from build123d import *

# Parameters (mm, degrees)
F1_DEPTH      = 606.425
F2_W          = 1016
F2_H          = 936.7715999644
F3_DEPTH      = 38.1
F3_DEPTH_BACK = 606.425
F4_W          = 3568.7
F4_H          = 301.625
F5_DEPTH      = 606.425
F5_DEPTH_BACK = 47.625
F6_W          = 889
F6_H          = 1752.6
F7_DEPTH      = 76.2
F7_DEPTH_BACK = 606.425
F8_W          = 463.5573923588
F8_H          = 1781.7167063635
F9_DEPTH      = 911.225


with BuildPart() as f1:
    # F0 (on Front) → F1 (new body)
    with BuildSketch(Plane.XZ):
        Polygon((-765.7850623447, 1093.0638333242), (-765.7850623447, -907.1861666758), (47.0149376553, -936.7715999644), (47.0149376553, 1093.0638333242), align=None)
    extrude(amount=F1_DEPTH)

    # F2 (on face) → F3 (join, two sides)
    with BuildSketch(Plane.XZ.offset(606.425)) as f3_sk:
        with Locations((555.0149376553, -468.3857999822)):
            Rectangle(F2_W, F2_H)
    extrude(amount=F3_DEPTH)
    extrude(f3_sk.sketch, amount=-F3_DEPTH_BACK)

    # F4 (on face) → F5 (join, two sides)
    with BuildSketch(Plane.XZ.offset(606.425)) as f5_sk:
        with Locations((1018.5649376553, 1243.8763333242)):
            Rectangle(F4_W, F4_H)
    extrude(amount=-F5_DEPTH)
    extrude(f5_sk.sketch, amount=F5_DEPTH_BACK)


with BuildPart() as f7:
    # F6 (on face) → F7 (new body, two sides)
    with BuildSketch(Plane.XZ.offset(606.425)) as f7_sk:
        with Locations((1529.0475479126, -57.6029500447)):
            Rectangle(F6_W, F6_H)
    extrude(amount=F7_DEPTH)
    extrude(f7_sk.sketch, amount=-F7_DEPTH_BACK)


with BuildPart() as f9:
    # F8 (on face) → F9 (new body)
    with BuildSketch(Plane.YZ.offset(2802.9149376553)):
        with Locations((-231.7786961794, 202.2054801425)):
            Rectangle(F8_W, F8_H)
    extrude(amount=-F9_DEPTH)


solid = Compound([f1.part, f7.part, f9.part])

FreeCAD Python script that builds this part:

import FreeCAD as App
import Part
import Sketcher

V = App.Vector
Q = App.Units.Quantity

doc = App.newDocument("Part")
body = doc.addObject("PartDesign::Body", "Body")

sketch1 = body.newObject("Sketcher::SketchObject", "Sketch")
sketch1.AttachmentSupport = (doc.getObject("XZ_Plane"), [""])
sketch1.MapMode = "FlatFace"
sketch1.addGeometry(Part.LineSegment(V(-766, 1093, 0), V(-766, -907, 0)), False)
sketch1.addGeometry(Part.LineSegment(V(-766, -907, 0), V(47, -937, 0)), False)
sketch1.addGeometry(Part.LineSegment(V(47, -937, 0), V(47, 1093, 0)), False)
sketch1.addGeometry(Part.LineSegment(V(47, 1093, 0), V(-766, 1093, 0)), False)
sketch1.addConstraint(Sketcher.Constraint("Coincident", 0, 2, 1, 1))
sketch1.addConstraint(Sketcher.Constraint("Coincident", 1, 2, 2, 1))
sketch1.addConstraint(Sketcher.Constraint("Coincident", 2, 2, 3, 1))
sketch1.addConstraint(Sketcher.Constraint("Coincident", 3, 2, 0, 1))
sketch1.addConstraint(Sketcher.Constraint("Vertical", 0))
sketch1.addConstraint(Sketcher.Constraint("Vertical", 2))
sketch1.addConstraint(Sketcher.Constraint("Horizontal", 3))
sketch1.addConstraint(Sketcher.Constraint("DistanceX", 3, 2, 3, 1, Q("32 in")))
sketch1.addConstraint(Sketcher.Constraint("DistanceY", 0, 2, 0, 1, Q("78.75 in")))
sketch1.addConstraint(Sketcher.Constraint("DistanceY", 1, 2, -1, 1, 936.7716))
sketch1.addConstraint(Sketcher.Constraint("DistanceY", 2, 1, 2, 2, 2029.835433))
sketch1.addConstraint(Sketcher.Constraint("DistanceX", 0, 2, -1, 1, 765.785062))
pad1 = body.newObject("PartDesign::Pad", "Pad")
pad1.Profile = sketch1
pad1.Length = Q("23.875 in")

sketch2 = body.newObject("Sketcher::SketchObject", "Sketch001")
sketch2.AttachmentSupport = (doc.getObject("XZ_Plane"), [""])
sketch2.MapMode = "FlatFace"
sketch2.AttachmentOffset = App.Placement(V(0, 0, 23.875 * 25.4), App.Rotation())
sketch2.addGeometry(Part.LineSegment(V(47, 0, 0), V(47, -937, 0)), False)
sketch2.addGeometry(Part.LineSegment(V(47, -937, 0), V(1063, -937, 0)), False)
sketch2.addGeometry(Part.LineSegment(V(1063, -937, 0), V(1063, 0, 0)), False)
sketch2.addGeometry(Part.LineSegment(V(1063, 0, 0), V(47, 0, 0)), False)
sketch2.addConstraint(Sketcher.Constraint("Coincident", 0, 2, 1, 1))
sketch2.addConstraint(Sketcher.Constraint("Coincident", 1, 2, 2, 1))
sketch2.addConstraint(Sketcher.Constraint("Coincident", 2, 2, 3, 1))
sketch2.addConstraint(Sketcher.Constraint("Coincident", 3, 2, 0, 1))
sketch2.addConstraint(Sketcher.Constraint("Vertical", 0))
sketch2.addConstraint(Sketcher.Constraint("Horizontal", 1))
sketch2.addConstraint(Sketcher.Constraint("Vertical", 2))
sketch2.addConstraint(Sketcher.Constraint("Horizontal", 3))
sketch2.addConstraint(Sketcher.Constraint("PointOnObject", 2, 2, -1))
sketch2.addConstraint(Sketcher.Constraint("DistanceX", 1, 1, 1, 2, Q("40 in")))
sketch2.addConstraint(Sketcher.Constraint("DistanceY", 0, 2, 0, 1, 936.7716))
sketch2.addConstraint(Sketcher.Constraint("DistanceX", -1, 1, 0, 2, 47.014938))
pad2 = body.newObject("PartDesign::Pad", "Pad001")
pad2.Profile = sketch2
pad2.Type = "TwoLengths"
pad2.Length = Q("1.5 in")
pad2.Length2 = Q("23.875 in")

sketch3 = body.newObject("Sketcher::SketchObject", "Sketch002")
sketch3.AttachmentSupport = (doc.getObject("XZ_Plane"), [""])
sketch3.MapMode = "FlatFace"
sketch3.AttachmentOffset = App.Placement(V(0, 0, 23.875 * 25.4), App.Rotation())
sketch3.addGeometry(Part.LineSegment(V(-766, 1395, 0), V(-766, 1093, 0)), False)
sketch3.addGeometry(Part.LineSegment(V(-766, 1093, 0), V(2803, 1093, 0)), False)
sketch3.addGeometry(Part.LineSegment(V(2803, 1093, 0), V(2803, 1395, 0)), False)
sketch3.addGeometry(Part.LineSegment(V(2803, 1395, 0), V(-766, 1395, 0)), False)
sketch3.addConstraint(Sketcher.Constraint("Coincident", 0, 2, 1, 1))
sketch3.addConstraint(Sketcher.Constraint("Coincident", 1, 2, 2, 1))
sketch3.addConstraint(Sketcher.Constraint("Coincident", 2, 2, 3, 1))
sketch3.addConstraint(Sketcher.Constraint("Coincident", 3, 2, 0, 1))
sketch3.addConstraint(Sketcher.Constraint("Vertical", 0))
sketch3.addConstraint(Sketcher.Constraint("Horizontal", 1))
sketch3.addConstraint(Sketcher.Constraint("Vertical", 2))
sketch3.addConstraint(Sketcher.Constraint("Horizontal", 3))
sketch3.addConstraint(Sketcher.Constraint("DistanceX", 1, 1, 1, 2, Q("140.5 in")))
sketch3.addConstraint(Sketcher.Constraint("DistanceY", 0, 2, 0, 1, Q("11.875 in")))
sketch3.addConstraint(Sketcher.Constraint("DistanceX", 0, 2, -1, 1, 765.785062))
sketch3.addConstraint(Sketcher.Constraint("DistanceY", -1, 1, 0, 2, 1093.063833))
pad3 = body.newObject("PartDesign::Pad", "Pad002")
pad3.Profile = sketch3
pad3.Type = "TwoLengths"
pad3.Length = Q("23.875 in")
pad3.Length2 = Q("1.875 in")
pad3.Reversed = True
body2 = doc.addObject("PartDesign::Body", "Body001")

sketch4 = body2.newObject("Sketcher::SketchObject", "Sketch003")
sketch4.AttachmentSupport = (doc.getObject("XZ_Plane001"), [""])
sketch4.MapMode = "FlatFace"
sketch4.AttachmentOffset = App.Placement(V(0, 0, 23.875 * 25.4), App.Rotation())
sketch4.addGeometry(Part.LineSegment(V(1085, 819, 0), V(1085, -934, 0)), False)
sketch4.addGeometry(Part.LineSegment(V(1085, -934, 0), V(1974, -934, 0)), False)
sketch4.addGeometry(Part.LineSegment(V(1974, -934, 0), V(1974, 819, 0)), False)
sketch4.addGeometry(Part.LineSegment(V(1974, 819, 0), V(1085, 819, 0)), False)
sketch4.addConstraint(Sketcher.Constraint("Coincident", 0, 2, 1, 1))
sketch4.addConstraint(Sketcher.Constraint("Coincident", 1, 2, 2, 1))
sketch4.addConstraint(Sketcher.Constraint("Coincident", 2, 2, 3, 1))
sketch4.addConstraint(Sketcher.Constraint("Coincident", 3, 2, 0, 1))
sketch4.addConstraint(Sketcher.Constraint("Vertical", 0))
sketch4.addConstraint(Sketcher.Constraint("Horizontal", 1))
sketch4.addConstraint(Sketcher.Constraint("Vertical", 2))
sketch4.addConstraint(Sketcher.Constraint("Horizontal", 3))
sketch4.addConstraint(Sketcher.Constraint("DistanceX", 1, 1, 1, 2, Q("35 in")))
sketch4.addConstraint(Sketcher.Constraint("DistanceY", 0, 2, 0, 1, Q("69 in")))
sketch4.addConstraint(Sketcher.Constraint("DistanceY", 0, 2, -1, 1, 933.90295))
sketch4.addConstraint(Sketcher.Constraint("DistanceX", -1, 1, 0, 2, 1084.547548))
pad4 = body2.newObject("PartDesign::Pad", "Pad003")
pad4.Profile = sketch4
pad4.Type = "TwoLengths"
pad4.Length = Q("3 in")
pad4.Length2 = Q("23.875 in")
body3 = doc.addObject("PartDesign::Body", "Body002")

sketch5 = body3.newObject("Sketcher::SketchObject", "Sketch004")
sketch5.AttachmentSupport = (doc.getObject("YZ_Plane002"), [""])
sketch5.MapMode = "FlatFace"
sketch5.AttachmentOffset = App.Placement(V(0, 0, 2802.914938), App.Rotation())
sketch5.addGeometry(Part.LineSegment(V(-464, 1093, 0), V(-464, -689, 0)), False)
sketch5.addGeometry(Part.LineSegment(V(-464, -689, 0), V(0, -689, 0)), False)
sketch5.addGeometry(Part.LineSegment(V(0, -689, 0), V(0, 1093, 0)), False)
sketch5.addGeometry(Part.LineSegment(V(0, 1093, 0), V(-464, 1093, 0)), False)
sketch5.addConstraint(Sketcher.Constraint("Coincident", 0, 2, 1, 1))
sketch5.addConstraint(Sketcher.Constraint("Coincident", 1, 2, 2, 1))
sketch5.addConstraint(Sketcher.Constraint("Coincident", 2, 2, 3, 1))
sketch5.addConstraint(Sketcher.Constraint("Coincident", 3, 2, 0, 1))
sketch5.addConstraint(Sketcher.Constraint("Vertical", 0))
sketch5.addConstraint(Sketcher.Constraint("Horizontal", 1))
sketch5.addConstraint(Sketcher.Constraint("Vertical", 2))
sketch5.addConstraint(Sketcher.Constraint("Horizontal", 3))
sketch5.addConstraint(Sketcher.Constraint("PointOnObject", 1, 2, -2))
sketch5.addConstraint(Sketcher.Constraint("DistanceX", 1, 1, 1, 2, 463.557392))
sketch5.addConstraint(Sketcher.Constraint("DistanceY", 0, 2, 0, 1, 1781.716706))
sketch5.addConstraint(Sketcher.Constraint("DistanceY", 0, 2, -1, 1, 688.652873))
pad5 = body3.newObject("PartDesign::Pad", "Pad004")
pad5.Profile = sketch5
pad5.Length = Q("35.875 in")
pad5.Reversed = True

doc.recompute()
